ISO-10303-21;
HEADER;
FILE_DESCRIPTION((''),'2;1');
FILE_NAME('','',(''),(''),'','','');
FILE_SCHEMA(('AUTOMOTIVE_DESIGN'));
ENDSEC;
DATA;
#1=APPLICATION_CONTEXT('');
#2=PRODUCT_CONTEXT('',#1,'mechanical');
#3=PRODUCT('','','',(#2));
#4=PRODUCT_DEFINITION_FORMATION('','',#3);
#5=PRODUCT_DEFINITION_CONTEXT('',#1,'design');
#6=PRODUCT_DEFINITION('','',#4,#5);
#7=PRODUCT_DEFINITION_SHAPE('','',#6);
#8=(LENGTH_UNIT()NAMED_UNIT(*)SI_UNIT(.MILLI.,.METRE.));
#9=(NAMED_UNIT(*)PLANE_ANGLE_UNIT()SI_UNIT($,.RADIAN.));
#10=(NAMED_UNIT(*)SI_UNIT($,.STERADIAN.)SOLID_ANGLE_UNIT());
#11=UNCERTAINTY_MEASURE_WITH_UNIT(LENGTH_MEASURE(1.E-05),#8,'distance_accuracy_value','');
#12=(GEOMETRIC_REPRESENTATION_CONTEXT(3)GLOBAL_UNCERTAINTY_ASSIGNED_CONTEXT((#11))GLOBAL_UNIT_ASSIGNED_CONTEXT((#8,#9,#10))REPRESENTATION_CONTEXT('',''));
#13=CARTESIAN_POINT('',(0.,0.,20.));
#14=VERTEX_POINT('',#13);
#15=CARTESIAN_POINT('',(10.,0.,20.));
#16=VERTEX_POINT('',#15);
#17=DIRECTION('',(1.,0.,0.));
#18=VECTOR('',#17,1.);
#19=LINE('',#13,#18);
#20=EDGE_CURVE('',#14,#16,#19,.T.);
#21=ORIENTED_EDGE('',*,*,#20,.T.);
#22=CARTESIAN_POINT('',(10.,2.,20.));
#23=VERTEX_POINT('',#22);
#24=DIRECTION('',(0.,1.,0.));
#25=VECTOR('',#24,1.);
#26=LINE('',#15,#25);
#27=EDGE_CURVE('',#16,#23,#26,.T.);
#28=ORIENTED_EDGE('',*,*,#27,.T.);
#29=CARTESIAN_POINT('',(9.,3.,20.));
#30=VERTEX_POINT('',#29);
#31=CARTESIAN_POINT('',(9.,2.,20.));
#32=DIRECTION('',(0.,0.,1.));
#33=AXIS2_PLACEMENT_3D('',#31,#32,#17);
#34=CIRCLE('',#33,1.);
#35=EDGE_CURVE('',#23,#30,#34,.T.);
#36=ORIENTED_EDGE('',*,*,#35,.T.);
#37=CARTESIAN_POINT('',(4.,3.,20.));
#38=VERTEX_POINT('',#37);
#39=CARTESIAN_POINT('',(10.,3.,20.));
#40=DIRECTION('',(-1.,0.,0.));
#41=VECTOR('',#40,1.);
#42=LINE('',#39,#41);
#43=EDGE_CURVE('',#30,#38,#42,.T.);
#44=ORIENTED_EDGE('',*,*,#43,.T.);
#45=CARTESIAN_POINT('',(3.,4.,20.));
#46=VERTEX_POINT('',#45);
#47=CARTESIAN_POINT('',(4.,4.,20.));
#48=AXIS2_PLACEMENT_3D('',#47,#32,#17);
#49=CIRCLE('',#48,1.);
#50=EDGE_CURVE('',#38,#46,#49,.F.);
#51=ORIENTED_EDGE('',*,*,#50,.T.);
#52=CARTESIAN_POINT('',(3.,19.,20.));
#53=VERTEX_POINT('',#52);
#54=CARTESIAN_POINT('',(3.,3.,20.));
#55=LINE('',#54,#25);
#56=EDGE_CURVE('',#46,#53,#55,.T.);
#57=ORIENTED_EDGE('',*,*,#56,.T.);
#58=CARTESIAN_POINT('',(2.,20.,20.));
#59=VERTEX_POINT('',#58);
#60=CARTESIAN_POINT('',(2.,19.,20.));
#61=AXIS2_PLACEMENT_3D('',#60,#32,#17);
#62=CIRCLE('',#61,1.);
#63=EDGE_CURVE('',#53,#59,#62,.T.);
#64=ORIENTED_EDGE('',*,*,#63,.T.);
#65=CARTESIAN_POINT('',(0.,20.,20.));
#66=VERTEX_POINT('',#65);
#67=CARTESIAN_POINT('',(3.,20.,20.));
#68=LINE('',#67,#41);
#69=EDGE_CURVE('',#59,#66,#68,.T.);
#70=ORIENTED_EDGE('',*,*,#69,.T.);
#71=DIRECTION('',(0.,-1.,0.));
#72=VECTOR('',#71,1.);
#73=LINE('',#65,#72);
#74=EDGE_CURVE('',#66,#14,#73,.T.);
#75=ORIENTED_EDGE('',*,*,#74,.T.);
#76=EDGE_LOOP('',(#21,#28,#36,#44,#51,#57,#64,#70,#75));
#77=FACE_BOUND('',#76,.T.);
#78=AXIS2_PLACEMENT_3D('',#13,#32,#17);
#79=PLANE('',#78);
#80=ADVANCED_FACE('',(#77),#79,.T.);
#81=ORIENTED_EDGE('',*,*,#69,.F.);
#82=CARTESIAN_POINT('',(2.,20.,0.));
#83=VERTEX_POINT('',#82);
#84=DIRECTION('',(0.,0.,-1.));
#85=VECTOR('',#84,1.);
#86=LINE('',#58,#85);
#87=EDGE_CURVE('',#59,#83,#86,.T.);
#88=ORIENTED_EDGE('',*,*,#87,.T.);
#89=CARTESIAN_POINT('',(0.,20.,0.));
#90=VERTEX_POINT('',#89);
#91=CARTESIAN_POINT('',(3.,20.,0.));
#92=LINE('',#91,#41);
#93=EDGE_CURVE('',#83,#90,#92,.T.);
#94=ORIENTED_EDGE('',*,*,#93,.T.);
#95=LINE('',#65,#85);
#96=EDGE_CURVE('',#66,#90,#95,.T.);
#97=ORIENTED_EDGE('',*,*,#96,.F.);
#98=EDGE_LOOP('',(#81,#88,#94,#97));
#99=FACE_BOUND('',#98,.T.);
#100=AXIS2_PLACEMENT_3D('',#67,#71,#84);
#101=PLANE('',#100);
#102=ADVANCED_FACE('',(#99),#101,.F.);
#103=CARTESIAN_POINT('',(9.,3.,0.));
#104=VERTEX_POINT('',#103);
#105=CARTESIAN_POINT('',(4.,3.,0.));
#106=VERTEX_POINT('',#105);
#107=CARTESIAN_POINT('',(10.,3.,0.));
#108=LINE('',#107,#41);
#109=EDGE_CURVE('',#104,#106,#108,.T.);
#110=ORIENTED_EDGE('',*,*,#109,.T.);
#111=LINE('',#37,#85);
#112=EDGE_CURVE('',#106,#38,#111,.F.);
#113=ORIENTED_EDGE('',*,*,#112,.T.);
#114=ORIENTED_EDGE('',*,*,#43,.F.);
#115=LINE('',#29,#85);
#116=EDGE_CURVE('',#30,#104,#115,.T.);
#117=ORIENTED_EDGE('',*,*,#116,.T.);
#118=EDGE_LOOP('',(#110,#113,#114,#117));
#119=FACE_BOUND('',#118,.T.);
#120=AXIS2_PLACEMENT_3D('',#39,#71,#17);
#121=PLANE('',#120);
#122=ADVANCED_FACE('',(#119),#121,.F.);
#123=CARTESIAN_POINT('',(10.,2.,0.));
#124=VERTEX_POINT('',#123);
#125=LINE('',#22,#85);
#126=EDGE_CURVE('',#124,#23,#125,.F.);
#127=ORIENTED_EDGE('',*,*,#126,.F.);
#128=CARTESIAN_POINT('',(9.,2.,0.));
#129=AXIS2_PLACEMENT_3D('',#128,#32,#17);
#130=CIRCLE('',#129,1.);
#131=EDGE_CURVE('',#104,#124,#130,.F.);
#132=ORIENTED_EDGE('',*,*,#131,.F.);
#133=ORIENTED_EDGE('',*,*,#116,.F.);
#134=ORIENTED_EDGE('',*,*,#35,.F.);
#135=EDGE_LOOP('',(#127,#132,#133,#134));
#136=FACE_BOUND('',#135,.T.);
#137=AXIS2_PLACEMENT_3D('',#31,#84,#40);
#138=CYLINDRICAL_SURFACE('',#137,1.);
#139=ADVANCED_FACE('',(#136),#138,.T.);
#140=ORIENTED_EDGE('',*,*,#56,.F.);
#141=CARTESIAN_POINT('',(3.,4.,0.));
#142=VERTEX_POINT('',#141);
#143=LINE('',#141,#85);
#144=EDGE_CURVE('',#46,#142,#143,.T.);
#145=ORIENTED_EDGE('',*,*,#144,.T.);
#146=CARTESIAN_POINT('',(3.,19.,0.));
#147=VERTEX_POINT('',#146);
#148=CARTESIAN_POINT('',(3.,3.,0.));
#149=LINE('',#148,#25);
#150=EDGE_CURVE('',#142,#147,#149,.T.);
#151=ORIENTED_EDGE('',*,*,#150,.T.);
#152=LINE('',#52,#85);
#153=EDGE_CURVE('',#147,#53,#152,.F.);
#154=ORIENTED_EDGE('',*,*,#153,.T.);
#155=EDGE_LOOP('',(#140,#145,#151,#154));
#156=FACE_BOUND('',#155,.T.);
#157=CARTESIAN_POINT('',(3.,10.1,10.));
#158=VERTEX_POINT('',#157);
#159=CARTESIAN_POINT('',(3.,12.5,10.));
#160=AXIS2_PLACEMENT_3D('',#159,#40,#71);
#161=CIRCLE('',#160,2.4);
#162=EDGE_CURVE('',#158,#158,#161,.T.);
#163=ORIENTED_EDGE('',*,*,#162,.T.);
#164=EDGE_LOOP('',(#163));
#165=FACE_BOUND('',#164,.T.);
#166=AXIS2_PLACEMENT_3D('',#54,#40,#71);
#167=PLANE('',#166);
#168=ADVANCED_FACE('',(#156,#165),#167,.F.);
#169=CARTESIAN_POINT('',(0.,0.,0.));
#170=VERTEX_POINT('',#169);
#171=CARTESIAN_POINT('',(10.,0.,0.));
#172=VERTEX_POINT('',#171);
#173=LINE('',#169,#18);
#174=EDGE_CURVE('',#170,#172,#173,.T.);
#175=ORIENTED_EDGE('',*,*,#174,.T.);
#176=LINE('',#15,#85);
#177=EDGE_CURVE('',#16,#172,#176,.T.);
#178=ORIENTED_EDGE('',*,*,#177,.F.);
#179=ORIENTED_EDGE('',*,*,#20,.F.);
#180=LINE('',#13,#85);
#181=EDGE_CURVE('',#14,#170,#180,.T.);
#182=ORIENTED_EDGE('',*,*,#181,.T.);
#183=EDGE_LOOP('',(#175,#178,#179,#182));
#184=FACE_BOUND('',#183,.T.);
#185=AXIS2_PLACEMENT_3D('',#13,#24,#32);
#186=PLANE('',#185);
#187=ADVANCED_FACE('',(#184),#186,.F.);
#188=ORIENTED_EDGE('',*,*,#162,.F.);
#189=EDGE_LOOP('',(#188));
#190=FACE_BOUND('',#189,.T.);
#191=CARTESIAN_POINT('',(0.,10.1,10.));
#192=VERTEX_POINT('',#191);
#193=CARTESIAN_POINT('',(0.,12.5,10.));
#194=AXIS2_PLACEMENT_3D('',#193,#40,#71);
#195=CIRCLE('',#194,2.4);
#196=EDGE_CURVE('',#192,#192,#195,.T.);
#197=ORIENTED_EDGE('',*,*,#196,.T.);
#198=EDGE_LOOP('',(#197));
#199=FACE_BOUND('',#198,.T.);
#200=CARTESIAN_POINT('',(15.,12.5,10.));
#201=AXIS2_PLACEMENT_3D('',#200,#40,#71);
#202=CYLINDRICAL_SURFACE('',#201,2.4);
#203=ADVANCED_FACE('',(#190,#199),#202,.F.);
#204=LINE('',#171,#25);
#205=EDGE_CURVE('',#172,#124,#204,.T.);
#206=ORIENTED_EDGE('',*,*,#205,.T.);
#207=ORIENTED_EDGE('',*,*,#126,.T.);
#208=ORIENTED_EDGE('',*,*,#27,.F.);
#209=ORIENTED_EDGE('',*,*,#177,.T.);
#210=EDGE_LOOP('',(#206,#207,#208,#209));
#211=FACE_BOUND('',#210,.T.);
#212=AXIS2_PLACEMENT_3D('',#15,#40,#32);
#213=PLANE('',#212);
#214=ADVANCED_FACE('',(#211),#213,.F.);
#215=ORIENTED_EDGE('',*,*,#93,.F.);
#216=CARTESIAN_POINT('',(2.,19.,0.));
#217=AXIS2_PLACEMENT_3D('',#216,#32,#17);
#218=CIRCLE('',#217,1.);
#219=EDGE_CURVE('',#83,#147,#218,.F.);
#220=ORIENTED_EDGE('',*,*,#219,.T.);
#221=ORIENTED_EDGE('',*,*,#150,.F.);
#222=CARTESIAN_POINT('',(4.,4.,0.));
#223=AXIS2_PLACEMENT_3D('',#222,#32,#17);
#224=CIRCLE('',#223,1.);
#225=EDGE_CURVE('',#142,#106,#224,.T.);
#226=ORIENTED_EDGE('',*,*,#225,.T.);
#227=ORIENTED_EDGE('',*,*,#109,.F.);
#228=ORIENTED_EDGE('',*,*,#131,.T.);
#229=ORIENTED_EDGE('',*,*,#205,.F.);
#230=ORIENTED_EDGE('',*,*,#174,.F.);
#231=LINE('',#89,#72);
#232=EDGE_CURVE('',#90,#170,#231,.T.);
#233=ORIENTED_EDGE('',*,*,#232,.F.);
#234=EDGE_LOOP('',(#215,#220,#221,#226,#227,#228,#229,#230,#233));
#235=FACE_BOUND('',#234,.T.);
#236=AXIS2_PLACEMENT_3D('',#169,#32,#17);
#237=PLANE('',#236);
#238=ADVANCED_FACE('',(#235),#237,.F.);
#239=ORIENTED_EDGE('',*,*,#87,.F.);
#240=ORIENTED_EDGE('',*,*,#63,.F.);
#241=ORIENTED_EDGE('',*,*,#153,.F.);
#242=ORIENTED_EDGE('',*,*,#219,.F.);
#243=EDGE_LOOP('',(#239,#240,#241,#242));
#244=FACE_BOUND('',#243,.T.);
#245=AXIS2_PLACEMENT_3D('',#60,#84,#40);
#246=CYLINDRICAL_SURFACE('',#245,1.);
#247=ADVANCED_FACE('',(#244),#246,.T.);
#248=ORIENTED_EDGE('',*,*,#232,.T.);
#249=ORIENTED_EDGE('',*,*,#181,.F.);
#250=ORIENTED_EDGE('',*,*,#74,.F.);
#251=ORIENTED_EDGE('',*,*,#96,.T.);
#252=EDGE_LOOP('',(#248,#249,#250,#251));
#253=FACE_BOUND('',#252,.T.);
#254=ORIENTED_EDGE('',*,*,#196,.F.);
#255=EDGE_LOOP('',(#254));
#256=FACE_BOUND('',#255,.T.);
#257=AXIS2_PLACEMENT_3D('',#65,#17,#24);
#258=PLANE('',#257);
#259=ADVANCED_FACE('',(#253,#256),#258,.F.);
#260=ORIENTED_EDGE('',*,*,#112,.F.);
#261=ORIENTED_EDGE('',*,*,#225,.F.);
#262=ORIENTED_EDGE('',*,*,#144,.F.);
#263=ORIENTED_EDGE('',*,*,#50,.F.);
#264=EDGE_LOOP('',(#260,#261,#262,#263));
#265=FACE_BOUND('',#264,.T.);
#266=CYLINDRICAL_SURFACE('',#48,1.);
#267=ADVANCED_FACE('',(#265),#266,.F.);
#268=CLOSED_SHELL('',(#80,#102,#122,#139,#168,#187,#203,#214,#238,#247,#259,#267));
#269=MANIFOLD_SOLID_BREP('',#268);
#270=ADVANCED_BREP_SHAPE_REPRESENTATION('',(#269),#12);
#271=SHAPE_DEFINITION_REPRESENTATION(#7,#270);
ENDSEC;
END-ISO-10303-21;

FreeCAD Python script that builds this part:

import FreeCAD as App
import Part
import Sketcher
Q = App.Units.Quantity


def edges_at(feature, points):
    """Names of the edges that pass closest to the given points."""
    edges = feature.Shape.Edges
    near = lambda p: min(range(len(edges)), key=lambda i: edges[i].distToShape(Part.Vertex(*p))[0])
    return sorted({f"Edge{near(p) + 1}" for p in points})

doc = App.newDocument("Part")
body = doc.addObject("PartDesign::Body", "Body")

sketch1 = doc.addObject("Sketcher::SketchObject", "Sketch")
body.addObject(sketch1)
sketch1.AttachmentSupport = (doc.XY_Plane, [""])
sketch1.MapMode = "FlatFace"
sketch1.addGeometry([
    Part.LineSegment(App.Vector(0, 20, 0), App.Vector(0, 0, 0)),
    Part.LineSegment(App.Vector(0, 0, 0), App.Vector(10, 0, 0)),
    Part.LineSegment(App.Vector(10, 0, 0), App.Vector(10, 3, 0)),
    Part.LineSegment(App.Vector(10, 3, 0), App.Vector(3, 3, 0)),
    Part.LineSegment(App.Vector(3, 3, 0), App.Vector(3, 20, 0)),
    Part.LineSegment(App.Vector(3, 20, 0), App.Vector(0, 20, 0)),
], False)
sketch1.addConstraint([
    Sketcher.Constraint("Coincident", 0, 2, 1, 1),
    Sketcher.Constraint("Coincident", 1, 2, 2, 1),
    Sketcher.Constraint("Coincident", 2, 2, 3, 1),
    Sketcher.Constraint("Coincident", 3, 2, 4, 1),
    Sketcher.Constraint("Coincident", 4, 2, 5, 1),
    Sketcher.Constraint("Coincident", 5, 2, 0, 1),
    Sketcher.Constraint("Vertical", 0),
    Sketcher.Constraint("Horizontal", 1),
    Sketcher.Constraint("Vertical", 2),
    Sketcher.Constraint("Horizontal", 3),
    Sketcher.Constraint("Vertical", 4),
    Sketcher.Constraint("Horizontal", 5),
    Sketcher.Constraint("Coincident", 0, 2, -1, 1),
    Sketcher.Constraint("Equal", 5, 2),
    Sketcher.Constraint("DistanceX", 1, 1, 1, 2, Q("10 mm")),
    Sketcher.Constraint("DistanceX", 3, 2, 3, 1, Q("7 mm")),
    Sketcher.Constraint("DistanceY", 0, 2, 0, 1, Q("20 mm")),
])
pad1 = doc.addObject("PartDesign::Pad", "Pad")
body.addObject(pad1)
pad1.Profile = sketch1
pad1.Length = 20

sketch2 = doc.addObject("Sketcher::SketchObject", "Sketch001")
body.addObject(sketch2)
sketch2.AttachmentSupport = (doc.YZ_Plane, [""])
sketch2.MapMode = "FlatFace"
sketch2.addGeometry(Part.Circle(App.Vector(12.5, 10, 0), App.Vector(0, 0, 1), 2.4), False)
sketch2.addConstraint([
    Sketcher.Constraint("Diameter", 0, Q("4.8 mm")),
    Sketcher.Constraint("DistanceY", -1, 1, 0, 3, Q("10 mm")),
    Sketcher.Constraint("DistanceX", -1, 1, 0, 3, Q("12.5 mm")),
])
pocket1 = doc.addObject("PartDesign::Pocket", "Pocket")
body.addObject(pocket1)
pocket1.Profile = sketch2
pocket1.Length = 15
pocket1.Reversed = True
doc.recompute()

fillet = doc.addObject("PartDesign::Fillet", "Fillet")
body.addObject(fillet)
fillet.Base = (pocket1, edges_at(pocket1, [(3, 20, 10), (3, 3, 10), (10, 3, 10)]))
fillet.Radius = 1

doc.recompute()
